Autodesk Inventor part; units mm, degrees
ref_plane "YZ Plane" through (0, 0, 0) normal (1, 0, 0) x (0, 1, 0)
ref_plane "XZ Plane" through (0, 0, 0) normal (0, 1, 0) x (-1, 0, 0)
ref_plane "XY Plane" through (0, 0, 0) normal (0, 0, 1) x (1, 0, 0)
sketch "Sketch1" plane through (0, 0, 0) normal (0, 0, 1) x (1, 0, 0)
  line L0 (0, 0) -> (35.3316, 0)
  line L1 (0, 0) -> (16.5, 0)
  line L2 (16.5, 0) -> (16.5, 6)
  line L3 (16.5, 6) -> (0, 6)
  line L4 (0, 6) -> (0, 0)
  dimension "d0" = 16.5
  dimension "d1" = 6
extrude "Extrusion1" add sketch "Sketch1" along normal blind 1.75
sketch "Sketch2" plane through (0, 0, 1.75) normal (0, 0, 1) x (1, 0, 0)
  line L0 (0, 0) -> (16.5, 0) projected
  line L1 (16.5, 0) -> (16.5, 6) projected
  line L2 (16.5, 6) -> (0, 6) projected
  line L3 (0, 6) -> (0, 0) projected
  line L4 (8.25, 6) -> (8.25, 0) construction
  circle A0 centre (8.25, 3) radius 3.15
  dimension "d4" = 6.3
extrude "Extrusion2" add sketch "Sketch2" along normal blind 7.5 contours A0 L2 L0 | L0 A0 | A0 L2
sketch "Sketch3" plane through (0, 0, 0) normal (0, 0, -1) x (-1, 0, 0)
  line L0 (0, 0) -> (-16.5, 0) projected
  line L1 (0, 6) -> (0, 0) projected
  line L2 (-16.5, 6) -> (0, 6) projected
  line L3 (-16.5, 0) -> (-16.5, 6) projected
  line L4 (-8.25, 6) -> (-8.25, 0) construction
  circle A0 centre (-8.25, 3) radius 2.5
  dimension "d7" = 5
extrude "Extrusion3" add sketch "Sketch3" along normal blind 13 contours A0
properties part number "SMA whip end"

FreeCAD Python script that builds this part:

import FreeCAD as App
import Part
import Sketcher

V = App.Vector

doc = App.newDocument("Part")
body = doc.addObject("PartDesign::Body", "Body")

sketch1 = body.newObject("Sketcher::SketchObject", "Sketch")
sketch1.AttachmentSupport = (doc.getObject("XY_Plane"), [""])
sketch1.MapMode = "FlatFace"
sketch1.addGeometry([
    Part.LineSegment(V(0, 6, 0), V(0, 0, 0)),
    Part.LineSegment(V(0, 0, 0), V(16, 0, 0)),
    Part.LineSegment(V(16, 0, 0), V(16, 6, 0)),
    Part.LineSegment(V(16, 6, 0), V(0, 6, 0)),
], False)
sketch1.addConstraint([
    Sketcher.Constraint("Coincident", 0, 2, 1, 1),
    Sketcher.Constraint("Coincident", 1, 2, 2, 1),
    Sketcher.Constraint("Coincident", 2, 2, 3, 1),
    Sketcher.Constraint("Coincident", 3, 2, 0, 1),
    Sketcher.Constraint("Vertical", 0),
    Sketcher.Constraint("Horizontal", 1),
    Sketcher.Constraint("Vertical", 2),
    Sketcher.Constraint("Horizontal", 3),
    Sketcher.Constraint("Coincident", 0, 2, -1, 1),
    Sketcher.Constraint("DistanceY", 0, 2, 0, 1, 6.0),
    Sketcher.Constraint("DistanceX", 1, 1, 1, 2, 16.5),
])
pad1 = body.newObject("PartDesign::Pad", "Pad")
pad1.Profile = sketch1
pad1.Length = 1.75

sketch2 = body.newObject("Sketcher::SketchObject", "Sketch001")
sketch2.AttachmentSupport = (doc.getObject("XY_Plane"), [""])
sketch2.MapMode = "FlatFace"
sketch2.AttachmentOffset = App.Placement(V(0, 0, 1.75), App.Rotation())
sketch2.addGeometry(Part.Circle(V(8.2, 3, 0), V(0, 0, 1), 3.1), False)
sketch2.addConstraint([
    Sketcher.Constraint("Diameter", 0, 6.3),
    Sketcher.Constraint("DistanceY", -1, 1, 0, 3, 3.0),
    Sketcher.Constraint("DistanceX", -1, 1, 0, 3, 8.25),
])
pad2 = body.newObject("PartDesign::Pad", "Pad001")
pad2.Profile = sketch2
pad2.Length = 7.5

sketch3 = body.newObject("Sketcher::SketchObject", "Sketch002")
sketch3.AttachmentSupport = (doc.getObject("XY_Plane"), [""])
sketch3.MapMode = "FlatFace"
sketch3.addGeometry(Part.Circle(V(8.2, 3, 0), V(0, 0, 1), 2.5), False)
sketch3.addConstraint([
    Sketcher.Constraint("Diameter", 0, 5.0),
    Sketcher.Constraint("DistanceY", -1, 1, 0, 3, 3.0),
    Sketcher.Constraint("DistanceX", -1, 1, 0, 3, 8.25),
])
pad3 = body.newObject("PartDesign::Pad", "Pad002")
pad3.Profile = sketch3
pad3.Length = 13
pad3.Reversed = True

doc.recompute()
